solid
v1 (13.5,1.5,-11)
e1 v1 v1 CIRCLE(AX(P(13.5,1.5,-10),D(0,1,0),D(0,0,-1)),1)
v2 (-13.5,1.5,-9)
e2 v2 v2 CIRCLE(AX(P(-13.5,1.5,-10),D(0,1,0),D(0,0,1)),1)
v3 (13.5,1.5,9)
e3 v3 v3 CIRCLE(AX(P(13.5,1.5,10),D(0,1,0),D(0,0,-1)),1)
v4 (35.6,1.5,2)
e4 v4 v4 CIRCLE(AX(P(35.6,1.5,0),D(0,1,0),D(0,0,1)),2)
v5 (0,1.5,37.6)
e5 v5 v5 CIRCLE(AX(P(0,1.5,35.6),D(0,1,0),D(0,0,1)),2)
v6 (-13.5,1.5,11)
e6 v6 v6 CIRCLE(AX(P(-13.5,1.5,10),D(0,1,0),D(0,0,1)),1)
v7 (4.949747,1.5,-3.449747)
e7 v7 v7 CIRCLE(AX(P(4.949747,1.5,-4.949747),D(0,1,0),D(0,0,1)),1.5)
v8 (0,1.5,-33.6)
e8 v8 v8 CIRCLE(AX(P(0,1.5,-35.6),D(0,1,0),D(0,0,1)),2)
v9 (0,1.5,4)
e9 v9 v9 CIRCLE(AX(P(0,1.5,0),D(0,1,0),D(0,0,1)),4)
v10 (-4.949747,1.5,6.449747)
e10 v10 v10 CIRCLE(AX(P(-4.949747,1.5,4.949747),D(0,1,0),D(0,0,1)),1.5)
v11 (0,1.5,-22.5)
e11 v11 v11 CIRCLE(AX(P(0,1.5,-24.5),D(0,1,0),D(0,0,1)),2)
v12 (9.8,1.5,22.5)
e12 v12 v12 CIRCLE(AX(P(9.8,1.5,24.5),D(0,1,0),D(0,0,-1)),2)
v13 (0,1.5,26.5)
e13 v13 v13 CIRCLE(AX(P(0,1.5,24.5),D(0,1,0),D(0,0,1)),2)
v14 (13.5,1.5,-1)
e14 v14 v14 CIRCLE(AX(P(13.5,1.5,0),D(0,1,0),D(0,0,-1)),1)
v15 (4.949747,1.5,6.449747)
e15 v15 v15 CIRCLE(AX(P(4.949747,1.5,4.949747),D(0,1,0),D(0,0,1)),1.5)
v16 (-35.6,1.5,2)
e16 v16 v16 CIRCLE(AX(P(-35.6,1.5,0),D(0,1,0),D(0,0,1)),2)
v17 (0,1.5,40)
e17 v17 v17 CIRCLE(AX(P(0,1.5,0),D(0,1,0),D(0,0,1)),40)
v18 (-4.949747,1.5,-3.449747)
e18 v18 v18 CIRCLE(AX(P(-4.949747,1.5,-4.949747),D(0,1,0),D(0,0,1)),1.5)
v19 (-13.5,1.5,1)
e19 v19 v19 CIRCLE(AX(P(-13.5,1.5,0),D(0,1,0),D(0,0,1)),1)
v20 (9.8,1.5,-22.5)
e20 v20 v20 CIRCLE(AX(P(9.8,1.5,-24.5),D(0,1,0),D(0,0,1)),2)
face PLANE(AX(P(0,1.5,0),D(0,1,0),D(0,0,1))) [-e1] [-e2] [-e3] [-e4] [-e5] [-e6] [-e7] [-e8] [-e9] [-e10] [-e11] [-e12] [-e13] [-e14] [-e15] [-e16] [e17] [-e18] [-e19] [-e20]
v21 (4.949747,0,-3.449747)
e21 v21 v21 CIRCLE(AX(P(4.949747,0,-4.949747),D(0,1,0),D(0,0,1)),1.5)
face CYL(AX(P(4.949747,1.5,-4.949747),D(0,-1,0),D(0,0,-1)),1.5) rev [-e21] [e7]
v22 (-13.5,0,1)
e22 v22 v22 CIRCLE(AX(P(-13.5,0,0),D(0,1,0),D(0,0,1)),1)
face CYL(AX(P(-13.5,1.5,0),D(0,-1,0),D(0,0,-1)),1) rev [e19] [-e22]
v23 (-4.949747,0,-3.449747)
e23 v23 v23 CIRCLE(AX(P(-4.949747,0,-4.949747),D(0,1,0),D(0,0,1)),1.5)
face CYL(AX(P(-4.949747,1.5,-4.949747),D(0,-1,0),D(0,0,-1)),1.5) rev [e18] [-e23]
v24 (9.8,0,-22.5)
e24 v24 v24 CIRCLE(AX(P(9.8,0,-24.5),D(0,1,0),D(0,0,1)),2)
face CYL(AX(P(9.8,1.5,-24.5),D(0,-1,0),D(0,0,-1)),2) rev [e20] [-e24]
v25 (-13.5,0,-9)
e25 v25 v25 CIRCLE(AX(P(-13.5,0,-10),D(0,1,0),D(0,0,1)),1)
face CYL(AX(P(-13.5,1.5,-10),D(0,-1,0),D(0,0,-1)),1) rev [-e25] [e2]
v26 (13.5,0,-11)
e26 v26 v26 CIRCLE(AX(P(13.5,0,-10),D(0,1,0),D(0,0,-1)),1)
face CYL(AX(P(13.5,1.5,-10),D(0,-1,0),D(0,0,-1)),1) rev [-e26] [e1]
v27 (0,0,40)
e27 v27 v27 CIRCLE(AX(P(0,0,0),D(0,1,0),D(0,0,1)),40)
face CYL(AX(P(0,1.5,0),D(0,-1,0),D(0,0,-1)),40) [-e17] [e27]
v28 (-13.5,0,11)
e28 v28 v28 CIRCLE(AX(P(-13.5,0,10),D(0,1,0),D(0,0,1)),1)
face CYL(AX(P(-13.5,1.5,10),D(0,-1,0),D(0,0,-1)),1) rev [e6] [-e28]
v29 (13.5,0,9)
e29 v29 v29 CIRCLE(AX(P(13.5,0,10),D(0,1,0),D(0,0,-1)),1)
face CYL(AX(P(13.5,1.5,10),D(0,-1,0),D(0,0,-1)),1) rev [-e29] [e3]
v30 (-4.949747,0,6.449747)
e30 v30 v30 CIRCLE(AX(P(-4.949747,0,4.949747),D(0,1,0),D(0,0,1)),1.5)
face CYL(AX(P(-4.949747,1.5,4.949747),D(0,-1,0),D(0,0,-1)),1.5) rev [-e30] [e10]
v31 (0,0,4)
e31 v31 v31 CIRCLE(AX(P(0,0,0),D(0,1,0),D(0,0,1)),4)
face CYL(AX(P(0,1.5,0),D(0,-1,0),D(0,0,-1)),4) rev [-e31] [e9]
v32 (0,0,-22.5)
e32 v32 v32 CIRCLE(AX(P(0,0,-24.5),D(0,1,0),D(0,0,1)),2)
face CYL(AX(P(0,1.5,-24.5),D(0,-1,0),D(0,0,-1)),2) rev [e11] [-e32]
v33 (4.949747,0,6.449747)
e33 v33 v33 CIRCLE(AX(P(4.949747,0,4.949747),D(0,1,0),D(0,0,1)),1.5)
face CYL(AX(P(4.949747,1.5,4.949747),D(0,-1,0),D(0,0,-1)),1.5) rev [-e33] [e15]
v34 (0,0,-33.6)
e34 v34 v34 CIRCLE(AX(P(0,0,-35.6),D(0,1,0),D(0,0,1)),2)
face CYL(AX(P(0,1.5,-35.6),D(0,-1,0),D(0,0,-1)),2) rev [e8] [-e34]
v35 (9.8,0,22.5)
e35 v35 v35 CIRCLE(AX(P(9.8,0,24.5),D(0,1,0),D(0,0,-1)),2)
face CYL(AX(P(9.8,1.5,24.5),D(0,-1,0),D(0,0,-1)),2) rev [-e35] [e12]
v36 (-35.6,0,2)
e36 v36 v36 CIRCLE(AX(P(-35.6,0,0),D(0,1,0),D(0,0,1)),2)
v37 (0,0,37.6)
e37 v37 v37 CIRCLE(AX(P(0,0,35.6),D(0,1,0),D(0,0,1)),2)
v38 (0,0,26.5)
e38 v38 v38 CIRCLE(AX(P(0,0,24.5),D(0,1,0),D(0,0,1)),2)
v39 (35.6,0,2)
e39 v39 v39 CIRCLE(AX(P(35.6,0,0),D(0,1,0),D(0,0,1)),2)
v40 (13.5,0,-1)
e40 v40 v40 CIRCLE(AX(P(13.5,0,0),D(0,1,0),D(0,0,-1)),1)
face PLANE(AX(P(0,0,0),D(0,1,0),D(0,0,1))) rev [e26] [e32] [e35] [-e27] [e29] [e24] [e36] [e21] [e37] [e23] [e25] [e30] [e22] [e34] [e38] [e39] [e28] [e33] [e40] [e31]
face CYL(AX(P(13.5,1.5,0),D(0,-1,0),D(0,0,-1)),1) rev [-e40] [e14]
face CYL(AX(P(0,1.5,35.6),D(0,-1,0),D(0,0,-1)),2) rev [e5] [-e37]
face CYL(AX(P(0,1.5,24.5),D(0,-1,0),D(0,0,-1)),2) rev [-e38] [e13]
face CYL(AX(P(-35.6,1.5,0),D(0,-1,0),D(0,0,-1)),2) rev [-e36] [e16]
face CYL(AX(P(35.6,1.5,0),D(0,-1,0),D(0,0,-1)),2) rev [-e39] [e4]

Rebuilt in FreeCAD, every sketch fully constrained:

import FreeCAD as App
import Part
import Sketcher
from FreeCAD import Vector

doc = App.newDocument("Part")
params = doc.addObject("Spreadsheet::Sheet", "Params")
for row, (alias, value) in enumerate([
    ("sketch1_diameter", "80 mm"),
    ("sketch1_diameter2", "4 mm"),
    ("sketch1_diameter3", "2 mm"),
    ("sketch1_diameter4", "3 mm"),
    ("sketch1_diameter5", "8 mm"),
    ("pad1_length", "1.5 mm"),
], start=1):
    params.set(f"A{row}", alias)
    params.set(f"B{row}", "=" + value)
    params.setAlias(f"B{row}", alias)

body = doc.addObject("PartDesign::Body", "Body")

sketch1 = body.newObject("Sketcher::SketchObject", "Sketch")
sketch1.AttachmentSupport = (doc.getObject("XZ_Plane"), [""])
sketch1.MapMode = "FlatFace"
sketch1.addGeometry(Part.Circle(Vector(0, 0, 0), Vector(0, 0, 1), 40), False)
sketch1.addGeometry(Part.Circle(Vector(0, -35.6, 0), Vector(0, 0, 1), 2), False)
sketch1.addGeometry(Part.Circle(Vector(0, -24.5, 0), Vector(0, 0, 1), 2), False)
sketch1.addGeometry(Part.Circle(Vector(-13.5, -10, 0), Vector(0, 0, 1), 1), False)
sketch1.addGeometry(Part.Circle(Vector(-4.9, -4.9, 0), Vector(0, 0, 1), 1.5), False)
sketch1.addGeometry(Part.Circle(Vector(-35.6, 0, 0), Vector(0, 0, 1), 2), False)
sketch1.addGeometry(Part.Circle(Vector(-13.5, 0, 0), Vector(0, 0, 1), 1), False)
sketch1.addGeometry(Part.Circle(Vector(-13.5, 10, 0), Vector(0, 0, 1), 1), False)
sketch1.addGeometry(Part.Circle(Vector(-4.9, 4.9, 0), Vector(0, 0, 1), 1.5), False)
sketch1.addGeometry(Part.Circle(Vector(9.8, -24.5, 0), Vector(0, 0, 1), 2), False)
sketch1.addGeometry(Part.Circle(Vector(4.9, -4.9, 0), Vector(0, 0, 1), 1.5), False)
sketch1.addGeometry(Part.Circle(Vector(13.5, -10, 0), Vector(0, 0, 1), 1), False)
sketch1.addGeometry(Part.Circle(Vector(35.6, 0, 0), Vector(0, 0, 1), 2), False)
sketch1.addGeometry(Part.Circle(Vector(0, 0, 0), Vector(0, 0, 1), 4), False)
sketch1.addGeometry(Part.Circle(Vector(4.9, 4.9, 0), Vector(0, 0, 1), 1.5), False)
sketch1.addGeometry(Part.Circle(Vector(13.5, 0, 0), Vector(0, 0, 1), 1), False)
sketch1.addGeometry(Part.Circle(Vector(13.5, 10, 0), Vector(0, 0, 1), 1), False)
sketch1.addGeometry(Part.Circle(Vector(0, 24.5, 0), Vector(0, 0, 1), 2), False)
sketch1.addGeometry(Part.Circle(Vector(0, 35.6, 0), Vector(0, 0, 1), 2), False)
sketch1.addGeometry(Part.Circle(Vector(9.8, 24.5, 0), Vector(0, 0, 1), 2), False)
sketch1.addConstraint(Sketcher.Constraint("Coincident", 0, 3, -1, 1))
sketch1.addConstraint(Sketcher.Constraint("Coincident", 13, 3, -1, 1))
sketch1.addConstraint(Sketcher.Constraint("Equal", 1, 2))
sketch1.addConstraint(Sketcher.Constraint("Equal", 2, 5))
sketch1.addConstraint(Sketcher.Constraint("Equal", 3, 6))
sketch1.addConstraint(Sketcher.Constraint("Equal", 6, 7))
sketch1.addConstraint(Sketcher.Constraint("Equal", 4, 8))
sketch1.addConstraint(Sketcher.Constraint("Equal", 5, 9))
sketch1.addConstraint(Sketcher.Constraint("Equal", 8, 10))
sketch1.addConstraint(Sketcher.Constraint("Equal", 7, 11))
sketch1.addConstraint(Sketcher.Constraint("Equal", 9, 12))
sketch1.addConstraint(Sketcher.Constraint("Equal", 10, 14))
sketch1.addConstraint(Sketcher.Constraint("Equal", 11, 15))
sketch1.addConstraint(Sketcher.Constraint("Equal", 15, 16))
sketch1.addConstraint(Sketcher.Constraint("Equal", 12, 17))
sketch1.addConstraint(Sketcher.Constraint("Equal", 17, 18))
sketch1.addConstraint(Sketcher.Constraint("Equal", 18, 19))
sketch1.addConstraint(Sketcher.Constraint("Symmetric", 8, 3, 10, 3, -1, 1))
sketch1.addConstraint(Sketcher.Constraint("Symmetric", 7, 3, 11, 3, -1, 1))
sketch1.addConstraint(Sketcher.Constraint("Symmetric", 5, 3, 12, 3, -1, 1))
sketch1.addConstraint(Sketcher.Constraint("Symmetric", 4, 3, 14, 3, -1, 1))
sketch1.addConstraint(Sketcher.Constraint("Symmetric", 6, 3, 15, 3, -1, 1))
sketch1.addConstraint(Sketcher.Constraint("Symmetric", 3, 3, 16, 3, -1, 1))
sketch1.addConstraint(Sketcher.Constraint("Symmetric", 2, 3, 17, 3, -1, 1))
sketch1.addConstraint(Sketcher.Constraint("Symmetric", 1, 3, 18, 3, -1, 1))
sketch1.addConstraint(Sketcher.Constraint("Symmetric", 4, 3, 10, 3, -2))
sketch1.addConstraint(Sketcher.Constraint("Symmetric", 3, 3, 11, 3, -2))
sketch1.addConstraint(Sketcher.Constraint("Symmetric", 9, 3, 19, 3, -1))
sketch1.addConstraint(Sketcher.Constraint("PointOnObject", 1, 3, -2))
sketch1.addConstraint(Sketcher.Constraint("PointOnObject", 2, 3, -2))
sketch1.addConstraint(Sketcher.Constraint("PointOnObject", 5, 3, -1))
sketch1.addConstraint(Sketcher.Constraint("PointOnObject", 6, 3, -1))
sketch1.addConstraint(Sketcher.Constraint("Horizontal", 2, 3, 9, 3))
sketch1.addConstraint(Sketcher.Constraint("Vertical", 3, 3, 6, 3))
sketch1.addConstraint(Sketcher.Constraint("Diameter", 0, 80.0))
sketch1.addConstraint(Sketcher.Constraint("Diameter", 1, 4.0))
sketch1.addConstraint(Sketcher.Constraint("Diameter", 3, 2.0))
sketch1.addConstraint(Sketcher.Constraint("Diameter", 4, 3.0))
sketch1.addConstraint(Sketcher.Constraint("Diameter", 13, 8.0))
sketch1.addConstraint(Sketcher.Constraint("DistanceY", 3, 3, -1, 1, 10.0))
sketch1.addConstraint(Sketcher.Constraint("DistanceY", 1, 3, -1, 1, 35.6))
sketch1.addConstraint(Sketcher.Constraint("DistanceY", 2, 3, -1, 1, 24.5))
sketch1.addConstraint(Sketcher.Constraint("DistanceX", 3, 3, -1, 1, 13.5))
sketch1.addConstraint(Sketcher.Constraint("DistanceX", 5, 3, -1, 1, 35.6))
sketch1.addConstraint(Sketcher.Constraint("DistanceX", -1, 1, 9, 3, 9.8))
sketch1.addConstraint(Sketcher.Constraint("DistanceX", 4, 3, -1, 1, 4.949747))
sketch1.addConstraint(Sketcher.Constraint("DistanceY", 4, 3, -1, 1, 4.949747))
sketch1.setExpression("Constraints[34]", "Params.sketch1_diameter")
sketch1.setExpression("Constraints[35]", "Params.sketch1_diameter2")
sketch1.setExpression("Constraints[36]", "Params.sketch1_diameter3")
sketch1.setExpression("Constraints[37]", "Params.sketch1_diameter4")
sketch1.setExpression("Constraints[38]", "Params.sketch1_diameter5")
pad1 = body.newObject("PartDesign::Pad", "Pad")
pad1.Profile = sketch1
pad1.setExpression("Length", "Params.pad1_length")
pad1.Reversed = True

doc.recompute()
